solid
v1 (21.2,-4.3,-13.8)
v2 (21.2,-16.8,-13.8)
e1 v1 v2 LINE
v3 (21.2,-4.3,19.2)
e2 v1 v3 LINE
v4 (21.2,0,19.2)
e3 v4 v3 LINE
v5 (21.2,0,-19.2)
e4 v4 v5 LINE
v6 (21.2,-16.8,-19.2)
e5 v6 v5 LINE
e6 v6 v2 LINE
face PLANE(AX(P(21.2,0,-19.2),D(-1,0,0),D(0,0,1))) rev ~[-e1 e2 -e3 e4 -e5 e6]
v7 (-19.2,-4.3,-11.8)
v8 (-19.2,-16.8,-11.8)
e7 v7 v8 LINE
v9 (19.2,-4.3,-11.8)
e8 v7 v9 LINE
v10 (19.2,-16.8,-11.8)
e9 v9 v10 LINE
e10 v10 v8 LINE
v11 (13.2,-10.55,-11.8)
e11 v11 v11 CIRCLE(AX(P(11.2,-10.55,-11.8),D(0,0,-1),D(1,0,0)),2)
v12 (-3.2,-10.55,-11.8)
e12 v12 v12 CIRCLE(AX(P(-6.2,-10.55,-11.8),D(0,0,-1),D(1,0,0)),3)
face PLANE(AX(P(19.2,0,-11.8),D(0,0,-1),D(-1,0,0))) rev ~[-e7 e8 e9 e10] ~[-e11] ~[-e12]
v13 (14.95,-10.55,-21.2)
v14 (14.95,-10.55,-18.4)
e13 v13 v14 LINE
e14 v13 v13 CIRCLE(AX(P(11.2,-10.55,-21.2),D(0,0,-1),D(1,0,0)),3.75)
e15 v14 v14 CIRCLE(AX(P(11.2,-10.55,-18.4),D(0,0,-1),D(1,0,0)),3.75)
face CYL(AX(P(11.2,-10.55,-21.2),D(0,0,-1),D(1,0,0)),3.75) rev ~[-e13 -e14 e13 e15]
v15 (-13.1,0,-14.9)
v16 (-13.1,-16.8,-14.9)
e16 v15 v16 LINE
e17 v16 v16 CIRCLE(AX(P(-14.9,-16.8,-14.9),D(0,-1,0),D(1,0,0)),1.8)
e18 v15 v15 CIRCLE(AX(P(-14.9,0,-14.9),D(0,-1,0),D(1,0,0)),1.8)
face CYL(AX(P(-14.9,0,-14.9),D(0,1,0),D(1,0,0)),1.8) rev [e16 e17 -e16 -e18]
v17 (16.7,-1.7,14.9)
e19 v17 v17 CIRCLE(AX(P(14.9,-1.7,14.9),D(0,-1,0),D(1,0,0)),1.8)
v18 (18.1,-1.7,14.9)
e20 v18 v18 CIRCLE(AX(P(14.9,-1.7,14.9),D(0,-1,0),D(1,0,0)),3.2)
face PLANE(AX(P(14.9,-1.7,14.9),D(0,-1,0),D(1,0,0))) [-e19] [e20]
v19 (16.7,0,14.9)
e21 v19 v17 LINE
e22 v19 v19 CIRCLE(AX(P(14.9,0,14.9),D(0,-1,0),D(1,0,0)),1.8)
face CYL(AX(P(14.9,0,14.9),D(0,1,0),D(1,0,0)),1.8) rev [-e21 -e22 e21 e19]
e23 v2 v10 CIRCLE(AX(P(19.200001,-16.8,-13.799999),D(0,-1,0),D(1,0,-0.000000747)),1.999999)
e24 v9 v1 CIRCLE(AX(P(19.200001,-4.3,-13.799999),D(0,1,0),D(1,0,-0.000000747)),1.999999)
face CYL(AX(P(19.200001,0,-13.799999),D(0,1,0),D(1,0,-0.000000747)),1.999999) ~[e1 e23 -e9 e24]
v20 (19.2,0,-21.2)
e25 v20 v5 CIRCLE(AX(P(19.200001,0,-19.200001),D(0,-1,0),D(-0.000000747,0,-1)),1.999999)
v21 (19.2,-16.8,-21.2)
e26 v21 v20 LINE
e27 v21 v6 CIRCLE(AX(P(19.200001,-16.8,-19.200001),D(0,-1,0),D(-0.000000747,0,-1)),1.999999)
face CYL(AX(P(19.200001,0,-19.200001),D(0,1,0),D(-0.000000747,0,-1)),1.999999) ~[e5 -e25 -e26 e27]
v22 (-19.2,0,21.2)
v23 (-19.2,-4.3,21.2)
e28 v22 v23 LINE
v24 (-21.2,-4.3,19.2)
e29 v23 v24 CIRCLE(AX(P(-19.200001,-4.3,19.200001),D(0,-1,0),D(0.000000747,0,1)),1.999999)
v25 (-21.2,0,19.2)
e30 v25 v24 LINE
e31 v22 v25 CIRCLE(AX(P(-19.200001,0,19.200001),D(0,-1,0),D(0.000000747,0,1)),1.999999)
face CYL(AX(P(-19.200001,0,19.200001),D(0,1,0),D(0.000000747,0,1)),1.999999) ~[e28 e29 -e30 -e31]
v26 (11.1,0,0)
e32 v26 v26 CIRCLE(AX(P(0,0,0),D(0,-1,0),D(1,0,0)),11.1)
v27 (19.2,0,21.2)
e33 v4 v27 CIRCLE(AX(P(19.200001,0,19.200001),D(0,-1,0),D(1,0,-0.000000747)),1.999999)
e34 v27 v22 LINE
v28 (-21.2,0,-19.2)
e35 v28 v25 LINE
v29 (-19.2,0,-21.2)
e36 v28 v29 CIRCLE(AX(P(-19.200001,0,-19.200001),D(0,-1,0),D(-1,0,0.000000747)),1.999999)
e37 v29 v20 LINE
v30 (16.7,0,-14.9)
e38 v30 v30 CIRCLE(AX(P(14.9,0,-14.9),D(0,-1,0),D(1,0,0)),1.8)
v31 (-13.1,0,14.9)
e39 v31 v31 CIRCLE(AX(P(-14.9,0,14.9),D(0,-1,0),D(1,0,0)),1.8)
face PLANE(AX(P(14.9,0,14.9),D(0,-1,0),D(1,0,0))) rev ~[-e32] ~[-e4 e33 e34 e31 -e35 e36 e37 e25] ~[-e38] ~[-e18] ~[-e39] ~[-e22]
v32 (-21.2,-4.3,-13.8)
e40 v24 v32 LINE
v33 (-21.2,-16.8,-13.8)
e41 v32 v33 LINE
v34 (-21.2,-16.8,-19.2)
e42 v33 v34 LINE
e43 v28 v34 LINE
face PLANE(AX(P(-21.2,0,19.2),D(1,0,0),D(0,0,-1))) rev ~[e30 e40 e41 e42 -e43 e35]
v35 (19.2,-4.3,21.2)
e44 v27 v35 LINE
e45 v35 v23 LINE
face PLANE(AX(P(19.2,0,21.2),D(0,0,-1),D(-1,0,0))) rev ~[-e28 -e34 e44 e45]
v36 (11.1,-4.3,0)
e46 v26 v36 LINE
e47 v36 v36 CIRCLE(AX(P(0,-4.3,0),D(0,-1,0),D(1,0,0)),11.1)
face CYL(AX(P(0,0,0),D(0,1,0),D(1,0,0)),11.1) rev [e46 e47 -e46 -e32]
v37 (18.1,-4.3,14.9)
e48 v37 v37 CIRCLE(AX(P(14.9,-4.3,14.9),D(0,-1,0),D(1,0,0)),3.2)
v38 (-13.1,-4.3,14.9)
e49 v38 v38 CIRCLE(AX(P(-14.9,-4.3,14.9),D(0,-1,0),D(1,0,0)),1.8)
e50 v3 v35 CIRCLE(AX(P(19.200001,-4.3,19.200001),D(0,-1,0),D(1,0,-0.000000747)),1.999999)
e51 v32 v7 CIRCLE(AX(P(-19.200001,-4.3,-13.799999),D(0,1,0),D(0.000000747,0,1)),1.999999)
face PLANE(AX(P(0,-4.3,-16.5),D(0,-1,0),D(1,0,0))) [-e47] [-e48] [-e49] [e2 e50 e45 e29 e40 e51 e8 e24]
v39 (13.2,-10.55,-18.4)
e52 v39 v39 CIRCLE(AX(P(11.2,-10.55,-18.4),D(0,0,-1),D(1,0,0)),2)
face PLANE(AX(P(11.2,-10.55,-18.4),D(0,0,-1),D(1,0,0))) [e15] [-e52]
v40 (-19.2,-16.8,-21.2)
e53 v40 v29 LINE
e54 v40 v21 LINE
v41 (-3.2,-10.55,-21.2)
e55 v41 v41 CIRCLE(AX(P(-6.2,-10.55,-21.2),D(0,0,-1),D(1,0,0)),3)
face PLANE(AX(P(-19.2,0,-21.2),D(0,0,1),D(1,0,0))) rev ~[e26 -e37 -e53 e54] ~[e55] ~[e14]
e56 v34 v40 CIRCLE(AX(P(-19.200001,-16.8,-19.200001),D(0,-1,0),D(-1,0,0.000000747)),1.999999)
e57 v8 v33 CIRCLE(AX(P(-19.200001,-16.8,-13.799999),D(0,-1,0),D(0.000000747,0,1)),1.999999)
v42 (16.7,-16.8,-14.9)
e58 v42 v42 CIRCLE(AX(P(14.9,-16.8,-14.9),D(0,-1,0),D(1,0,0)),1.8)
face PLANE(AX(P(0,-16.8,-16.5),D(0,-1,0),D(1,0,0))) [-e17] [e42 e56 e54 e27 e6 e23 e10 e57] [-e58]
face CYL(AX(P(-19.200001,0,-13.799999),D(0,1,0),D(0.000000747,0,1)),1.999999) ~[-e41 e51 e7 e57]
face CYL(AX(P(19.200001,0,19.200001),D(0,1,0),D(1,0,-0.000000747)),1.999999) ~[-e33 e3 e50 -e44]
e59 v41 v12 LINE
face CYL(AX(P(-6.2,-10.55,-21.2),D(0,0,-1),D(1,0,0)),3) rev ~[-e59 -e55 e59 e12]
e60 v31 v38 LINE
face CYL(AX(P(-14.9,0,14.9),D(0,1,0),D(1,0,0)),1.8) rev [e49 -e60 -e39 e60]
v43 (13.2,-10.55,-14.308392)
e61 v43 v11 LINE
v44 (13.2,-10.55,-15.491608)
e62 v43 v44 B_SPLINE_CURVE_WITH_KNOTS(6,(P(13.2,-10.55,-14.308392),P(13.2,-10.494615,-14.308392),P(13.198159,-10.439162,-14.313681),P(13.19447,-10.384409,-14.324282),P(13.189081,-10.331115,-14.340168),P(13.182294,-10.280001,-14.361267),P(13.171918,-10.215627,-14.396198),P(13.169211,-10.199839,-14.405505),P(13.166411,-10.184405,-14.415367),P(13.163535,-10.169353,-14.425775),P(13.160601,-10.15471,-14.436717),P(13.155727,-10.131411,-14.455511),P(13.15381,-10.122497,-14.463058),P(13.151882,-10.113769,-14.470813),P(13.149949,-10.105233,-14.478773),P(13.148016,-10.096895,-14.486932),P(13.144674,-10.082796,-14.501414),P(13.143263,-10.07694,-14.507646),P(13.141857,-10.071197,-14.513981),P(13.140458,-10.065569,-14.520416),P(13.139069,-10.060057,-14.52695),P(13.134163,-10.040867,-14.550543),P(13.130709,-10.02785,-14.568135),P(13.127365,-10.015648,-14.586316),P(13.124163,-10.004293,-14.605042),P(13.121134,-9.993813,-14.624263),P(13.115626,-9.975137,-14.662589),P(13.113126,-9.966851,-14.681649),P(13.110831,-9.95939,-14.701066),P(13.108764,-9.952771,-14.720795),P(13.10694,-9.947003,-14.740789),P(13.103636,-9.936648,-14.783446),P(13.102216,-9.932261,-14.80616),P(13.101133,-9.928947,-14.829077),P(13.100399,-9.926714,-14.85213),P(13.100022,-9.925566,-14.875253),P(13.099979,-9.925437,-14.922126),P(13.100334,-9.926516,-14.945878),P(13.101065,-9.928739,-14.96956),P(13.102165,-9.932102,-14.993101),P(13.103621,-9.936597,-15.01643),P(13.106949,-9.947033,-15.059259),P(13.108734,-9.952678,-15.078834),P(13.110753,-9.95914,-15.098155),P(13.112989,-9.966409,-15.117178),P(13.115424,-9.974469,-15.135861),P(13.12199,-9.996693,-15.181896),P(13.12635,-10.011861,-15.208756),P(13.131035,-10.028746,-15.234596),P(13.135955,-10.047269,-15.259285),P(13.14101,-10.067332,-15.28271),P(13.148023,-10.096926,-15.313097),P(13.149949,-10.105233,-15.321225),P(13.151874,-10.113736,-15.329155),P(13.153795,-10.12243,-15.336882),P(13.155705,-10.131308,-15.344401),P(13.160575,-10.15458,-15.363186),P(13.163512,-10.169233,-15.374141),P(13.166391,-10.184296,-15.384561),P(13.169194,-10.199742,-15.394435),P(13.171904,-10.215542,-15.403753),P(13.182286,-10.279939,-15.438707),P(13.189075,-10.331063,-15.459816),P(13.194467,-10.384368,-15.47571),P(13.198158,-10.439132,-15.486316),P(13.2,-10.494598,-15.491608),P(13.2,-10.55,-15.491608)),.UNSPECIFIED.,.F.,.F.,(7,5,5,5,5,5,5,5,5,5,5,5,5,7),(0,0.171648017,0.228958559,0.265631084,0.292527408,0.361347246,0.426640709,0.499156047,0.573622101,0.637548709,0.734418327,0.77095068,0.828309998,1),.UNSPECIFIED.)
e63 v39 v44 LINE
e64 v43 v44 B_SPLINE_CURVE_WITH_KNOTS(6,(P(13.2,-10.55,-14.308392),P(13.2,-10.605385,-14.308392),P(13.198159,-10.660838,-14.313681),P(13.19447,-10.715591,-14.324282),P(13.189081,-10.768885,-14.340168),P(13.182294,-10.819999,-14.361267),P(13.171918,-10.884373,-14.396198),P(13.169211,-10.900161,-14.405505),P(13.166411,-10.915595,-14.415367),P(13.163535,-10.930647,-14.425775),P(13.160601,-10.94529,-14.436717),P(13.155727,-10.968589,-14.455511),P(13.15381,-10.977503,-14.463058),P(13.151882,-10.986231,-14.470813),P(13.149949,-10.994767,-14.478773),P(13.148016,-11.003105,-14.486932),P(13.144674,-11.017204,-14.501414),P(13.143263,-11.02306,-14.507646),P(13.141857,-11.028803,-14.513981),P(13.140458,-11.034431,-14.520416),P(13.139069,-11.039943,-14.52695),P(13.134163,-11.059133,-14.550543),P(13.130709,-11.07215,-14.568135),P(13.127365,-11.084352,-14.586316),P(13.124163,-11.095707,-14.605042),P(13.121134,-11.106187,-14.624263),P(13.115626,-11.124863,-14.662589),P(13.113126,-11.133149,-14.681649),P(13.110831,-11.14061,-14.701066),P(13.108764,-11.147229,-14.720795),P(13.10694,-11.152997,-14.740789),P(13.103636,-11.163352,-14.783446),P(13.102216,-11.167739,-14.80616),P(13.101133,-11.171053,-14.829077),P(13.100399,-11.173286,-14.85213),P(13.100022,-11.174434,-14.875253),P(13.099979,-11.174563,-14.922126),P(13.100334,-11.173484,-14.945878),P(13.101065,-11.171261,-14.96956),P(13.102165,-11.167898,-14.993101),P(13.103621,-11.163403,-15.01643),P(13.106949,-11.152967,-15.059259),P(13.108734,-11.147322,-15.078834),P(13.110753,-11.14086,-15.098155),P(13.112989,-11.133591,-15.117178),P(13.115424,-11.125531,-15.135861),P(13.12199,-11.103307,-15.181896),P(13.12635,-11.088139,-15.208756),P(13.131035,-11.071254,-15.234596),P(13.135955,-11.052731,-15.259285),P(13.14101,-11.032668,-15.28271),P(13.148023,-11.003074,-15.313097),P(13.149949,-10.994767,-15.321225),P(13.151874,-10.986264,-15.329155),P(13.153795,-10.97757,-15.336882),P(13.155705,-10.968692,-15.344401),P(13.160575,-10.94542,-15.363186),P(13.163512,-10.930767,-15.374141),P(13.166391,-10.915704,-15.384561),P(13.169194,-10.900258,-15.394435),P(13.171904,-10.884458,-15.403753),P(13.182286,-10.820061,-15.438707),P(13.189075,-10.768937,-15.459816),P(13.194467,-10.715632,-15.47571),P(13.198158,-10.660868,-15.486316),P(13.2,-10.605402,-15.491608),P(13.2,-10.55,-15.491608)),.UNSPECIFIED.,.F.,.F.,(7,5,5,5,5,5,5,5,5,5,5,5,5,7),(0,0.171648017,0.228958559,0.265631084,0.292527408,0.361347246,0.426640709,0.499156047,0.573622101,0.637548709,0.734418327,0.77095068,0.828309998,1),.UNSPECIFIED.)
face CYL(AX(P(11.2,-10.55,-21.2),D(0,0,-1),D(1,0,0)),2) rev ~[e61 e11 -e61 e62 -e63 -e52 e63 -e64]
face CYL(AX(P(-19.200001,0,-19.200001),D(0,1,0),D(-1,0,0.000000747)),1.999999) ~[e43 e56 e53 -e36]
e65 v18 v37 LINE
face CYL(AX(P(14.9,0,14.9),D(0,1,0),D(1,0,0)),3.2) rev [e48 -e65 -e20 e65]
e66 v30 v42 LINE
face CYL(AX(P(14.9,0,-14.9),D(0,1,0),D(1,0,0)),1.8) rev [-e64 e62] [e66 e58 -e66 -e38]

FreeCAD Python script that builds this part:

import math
import FreeCAD as App
import Part
import Sketcher

V = App.Vector
Q = App.Units.Quantity

doc = App.newDocument("Part")
body = doc.addObject("PartDesign::Body", "Body")

# Sketch on XZ plane
sketch1 = body.newObject("Sketcher::SketchObject", "Sketch")
sketch1.AttachmentSupport = (doc.getObject("XZ_Plane"), [""])
sketch1.MapMode = "FlatFace"
sketch1.addGeometry(Part.ArcOfCircle(Part.Circle(V(-19.200001, -19.200001, 0), V(0, 0, 1), 1.999999), math.radians(179.999957), math.radians(270.000043)), False)
sketch1.addGeometry(Part.LineSegment(V(-19.2, -21.2, 0), V(19.2, -21.2, 0)), False)
sketch1.addGeometry(Part.ArcOfCircle(Part.Circle(V(19.200001, -19.200001, 0), V(0, 0, 1), 1.999999), math.radians(-90.000043), math.radians(0.000043)), False)
sketch1.addGeometry(Part.LineSegment(V(21.2, -19.2, 0), V(21.2, 19.2, 0)), False)
sketch1.addGeometry(Part.ArcOfCircle(Part.Circle(V(19.200001, 19.200001, 0), V(0, 0, 1), 1.999999), math.radians(-0.000043), math.radians(90.000043)), False)
sketch1.addGeometry(Part.LineSegment(V(19.2, 21.2, 0), V(-19.2, 21.2, 0)), False)
sketch1.addGeometry(Part.ArcOfCircle(Part.Circle(V(-19.200001, 19.200001, 0), V(0, 0, 1), 1.999999), math.radians(89.999957), math.radians(180.000043)), False)
sketch1.addGeometry(Part.LineSegment(V(-21.2, 19.2, 0), V(-21.2, -19.2, 0)), False)
sketch1.addGeometry(Part.Circle(V(-14.9, -14.9, 0), V(0, 0, 1), 1.8), False)
sketch1.addGeometry(Part.Circle(V(0, 0, 0), V(0, 0, 1), 11.1), False)
sketch1.addGeometry(Part.Circle(V(14.9, -14.9, 0), V(0, 0, 1), 1.8), False)
sketch1.addGeometry(Part.Circle(V(-14.9, 14.9, 0), V(0, 0, 1), 1.8), False)
sketch1.addGeometry(Part.Circle(V(14.9, 14.9, 0), V(0, 0, 1), 3.2), False)
sketch1.addConstraint(Sketcher.Constraint("Tangent", 0, 2, 1, 1))
sketch1.addConstraint(Sketcher.Constraint("Tangent", 1, 2, 2, 1))
sketch1.addConstraint(Sketcher.Constraint("Tangent", 2, 2, 3, 1))
sketch1.addConstraint(Sketcher.Constraint("Tangent", 3, 2, 4, 1))
sketch1.addConstraint(Sketcher.Constraint("Tangent", 4, 2, 5, 1))
sketch1.addConstraint(Sketcher.Constraint("Tangent", 5, 2, 6, 1))
sketch1.addConstraint(Sketcher.Constraint("Tangent", 6, 2, 7, 1))
sketch1.addConstraint(Sketcher.Constraint("Tangent", 7, 2, 0, 1))
sketch1.addConstraint(Sketcher.Constraint("Horizontal", 1))
sketch1.addConstraint(Sketcher.Constraint("Vertical", 3))
sketch1.addConstraint(Sketcher.Constraint("Horizontal", 5))
sketch1.addConstraint(Sketcher.Constraint("Vertical", 7))
sketch1.addConstraint(Sketcher.Constraint("Coincident", 9, 3, -1, 1))
sketch1.addConstraint(Sketcher.Constraint("Equal", 0, 2))
sketch1.addConstraint(Sketcher.Constraint("Equal", 2, 4))
sketch1.addConstraint(Sketcher.Constraint("Equal", 4, 6))
sketch1.addConstraint(Sketcher.Constraint("Equal", 8, 10))
sketch1.addConstraint(Sketcher.Constraint("Equal", 10, 11))
sketch1.addConstraint(Sketcher.Constraint("Symmetric", 0, 3, 4, 3, -1, 1))
sketch1.addConstraint(Sketcher.Constraint("Symmetric", 10, 3, 11, 3, -1, 1))
sketch1.addConstraint(Sketcher.Constraint("Symmetric", 8, 3, 12, 3, -1, 1))
sketch1.addConstraint(Sketcher.Constraint("Symmetric", 8, 3, 10, 3, -2))
sketch1.addConstraint(Sketcher.Constraint("Equal", 5, 3))
sketch1.addConstraint(Sketcher.Constraint("Radius", 0, Q("1.999999 mm")))
sketch1.addConstraint(Sketcher.Constraint("Diameter", 8, Q("3.6 mm")))
sketch1.addConstraint(Sketcher.Constraint("Diameter", 9, Q("22.2 mm")))
sketch1.addConstraint(Sketcher.Constraint("Diameter", 12, Q("6.4 mm")))
sketch1.addConstraint(Sketcher.Constraint("DistanceX", 1, 1, 1, 2, Q("38.4 mm")))
sketch1.addConstraint(Sketcher.Constraint("DistanceX", 8, 3, -1, 1, Q("14.9 mm")))
sketch1.addConstraint(Sketcher.Constraint("DistanceY", 8, 3, -1, 1, Q("14.9 mm")))
pad1 = body.newObject("PartDesign::Pad", "Pad")
pad1.Profile = sketch1
pad1.Length = 4.3

# Sketch on XZ plane
sketch2 = body.newObject("Sketcher::SketchObject", "Sketch001")
sketch2.AttachmentSupport = (doc.getObject("XZ_Plane"), [""])
sketch2.MapMode = "FlatFace"
sketch2.addGeometry(Part.Circle(V(14.9, 14.9, 0), V(0, 0, 1), 3.2), False)
sketch2.addGeometry(Part.Circle(V(14.9, 14.9, 0), V(0, 0, 1), 1.8), False)
sketch2.addConstraint(Sketcher.Constraint("Coincident", 1, 3, 0, 3))
sketch2.addConstraint(Sketcher.Constraint("Diameter", 0, Q("6.4 mm")))
sketch2.addConstraint(Sketcher.Constraint("Diameter", 1, Q("3.6 mm")))
sketch2.addConstraint(Sketcher.Constraint("DistanceX", -1, 1, 0, 3, Q("14.9 mm")))
sketch2.addConstraint(Sketcher.Constraint("DistanceY", -1, 1, 0, 3, Q("14.9 mm")))
pad2 = body.newObject("PartDesign::Pad", "Pad001")
pad2.Profile = sketch2
pad2.Length = 1.7

# Sketch on XZ plane
sketch3 = body.newObject("Sketcher::SketchObject", "Sketch002")
sketch3.AttachmentSupport = (doc.getObject("XZ_Plane"), [""])
sketch3.MapMode = "FlatFace"
sketch3.addGeometry(Part.ArcOfCircle(Part.Circle(V(-19.200001, -13.799999, 0), V(0, 0, 1), 1.999999), math.radians(89.999957), math.radians(180.000043)), False)
sketch3.addGeometry(Part.LineSegment(V(-21.2, -13.8, 0), V(-21.2, -19.2, 0)), False)
sketch3.addGeometry(Part.ArcOfCircle(Part.Circle(V(-19.200001, -19.200001, 0), V(0, 0, 1), 1.999999), math.radians(179.999957), math.radians(270.000043)), False)
sketch3.addGeometry(Part.LineSegment(V(-19.2, -21.2, 0), V(19.2, -21.2, 0)), False)
sketch3.addGeometry(Part.ArcOfCircle(Part.Circle(V(19.200001, -19.200001, 0), V(0, 0, 1), 1.999999), math.radians(-90.000043), math.radians(0.000043)), False)
sketch3.addGeometry(Part.LineSegment(V(21.2, -19.2, 0), V(21.2, -13.8, 0)), False)
sketch3.addGeometry(Part.ArcOfCircle(Part.Circle(V(19.200001, -13.799999, 0), V(0, 0, 1), 1.999999), math.radians(-0.000043), math.radians(90.000043)), False)
sketch3.addGeometry(Part.LineSegment(V(19.2, -11.8, 0), V(-19.2, -11.8, 0)), False)
sketch3.addGeometry(Part.Circle(V(-14.9, -14.9, 0), V(0, 0, 1), 1.8), False)
sketch3.addGeometry(Part.Circle(V(14.9, -14.9, 0), V(0, 0, 1), 1.8), False)
sketch3.addConstraint(Sketcher.Constraint("Tangent", 0, 2, 1, 1))
sketch3.addConstraint(Sketcher.Constraint("Tangent", 1, 2, 2, 1))
sketch3.addConstraint(Sketcher.Constraint("Tangent", 2, 2, 3, 1))
sketch3.addConstraint(Sketcher.Constraint("Tangent", 3, 2, 4, 1))
sketch3.addConstraint(Sketcher.Constraint("Tangent", 4, 2, 5, 1))
sketch3.addConstraint(Sketcher.Constraint("Tangent", 5, 2, 6, 1))
sketch3.addConstraint(Sketcher.Constraint("Tangent", 6, 2, 7, 1))
sketch3.addConstraint(Sketcher.Constraint("Tangent", 7, 2, 0, 1))
sketch3.addConstraint(Sketcher.Constraint("Vertical", 1))
sketch3.addConstraint(Sketcher.Constraint("Horizontal", 3))
sketch3.addConstraint(Sketcher.Constraint("Vertical", 5))
sketch3.addConstraint(Sketcher.Constraint("Horizontal", 7))
sketch3.addConstraint(Sketcher.Constraint("Equal", 0, 2))
sketch3.addConstraint(Sketcher.Constraint("Equal", 2, 4))
sketch3.addConstraint(Sketcher.Constraint("Equal", 4, 6))
sketch3.addConstraint(Sketcher.Constraint("Equal", 8, 9))
sketch3.addConstraint(Sketcher.Constraint("Symmetric", 8, 3, 9, 3, -2))
sketch3.addConstraint(Sketcher.Constraint("Radius", 0, Q("1.999999 mm")))
sketch3.addConstraint(Sketcher.Constraint("Diameter", 8, Q("3.6 mm")))
sketch3.addConstraint(Sketcher.Constraint("DistanceX", 3, 1, 3, 2, Q("38.4 mm")))
sketch3.addConstraint(Sketcher.Constraint("DistanceY", 1, 2, 1, 1, Q("5.4 mm")))
sketch3.addConstraint(Sketcher.Constraint("DistanceX", 0, 3, -1, 1, Q("19.200001 mm")))
sketch3.addConstraint(Sketcher.Constraint("DistanceY", 0, 3, -1, 1, Q("13.799999 mm")))
sketch3.addConstraint(Sketcher.Constraint("DistanceX", 8, 3, -1, 1, Q("14.9 mm")))
sketch3.addConstraint(Sketcher.Constraint("DistanceY", 8, 3, -1, 1, Q("14.9 mm")))
pad3 = body.newObject("PartDesign::Pad", "Pad002")
pad3.Profile = sketch3
pad3.Length = 16.8

# Sketch on XY plane
sketch4 = body.newObject("Sketcher::SketchObject", "Sketch003")
sketch4.AttachmentSupport = (doc.getObject("XY_Plane"), [""])
sketch4.MapMode = "FlatFace"
sketch4.AttachmentOffset = App.Placement(V(0, 0, -21.2), App.Rotation())
sketch4.addGeometry(Part.Circle(V(-6.2, -10.55, 0), V(0, 0, 1), 3), False)
sketch4.addGeometry(Part.Circle(V(11.2, -10.55, 0), V(0, 0, 1), 2), False)
sketch4.addConstraint(Sketcher.Constraint("Horizontal", 0, 3, 1, 3))
sketch4.addConstraint(Sketcher.Constraint("Diameter", 0, Q("6 mm")))
sketch4.addConstraint(Sketcher.Constraint("Diameter", 1, Q("4 mm")))
sketch4.addConstraint(Sketcher.Constraint("DistanceX", 0, 3, -1, 1, Q("6.2 mm")))
sketch4.addConstraint(Sketcher.Constraint("DistanceX", -1, 1, 1, 3, Q("11.2 mm")))
sketch4.addConstraint(Sketcher.Constraint("DistanceY", 0, 3, -1, 1, Q("10.55 mm")))
pocket1 = body.newObject("PartDesign::Pocket", "Pocket")
pocket1.Profile = sketch4
pocket1.Type = "ThroughAll"
pocket1.Reversed = True

# Sketch on XY plane
sketch5 = body.newObject("Sketcher::SketchObject", "Sketch004")
sketch5.AttachmentSupport = (doc.getObject("XY_Plane"), [""])
sketch5.MapMode = "FlatFace"
sketch5.AttachmentOffset = App.Placement(V(0, 0, -21.2), App.Rotation())
sketch5.addGeometry(Part.Circle(V(11.2, -10.55, 0), V(0, 0, 1), 3.75), False)
sketch5.addGeometry(Part.Circle(V(11.2, -10.55, 0), V(0, 0, 1), 2), False)
sketch5.addConstraint(Sketcher.Constraint("Coincident", 1, 3, 0, 3))
sketch5.addConstraint(Sketcher.Constraint("Diameter", 1, Q("4 mm")))
sketch5.addConstraint(Sketcher.Constraint("Diameter", 0, Q("7.5 mm")))
sketch5.addConstraint(Sketcher.Constraint("DistanceX", -1, 1, 0, 3, Q("11.2 mm")))
sketch5.addConstraint(Sketcher.Constraint("DistanceY", 0, 3, -1, 1, Q("10.55 mm")))
pocket2 = body.newObject("PartDesign::Pocket", "Pocket001")
pocket2.Profile = sketch5
pocket2.Length = 2.8
pocket2.Reversed = True

doc.recompute()
